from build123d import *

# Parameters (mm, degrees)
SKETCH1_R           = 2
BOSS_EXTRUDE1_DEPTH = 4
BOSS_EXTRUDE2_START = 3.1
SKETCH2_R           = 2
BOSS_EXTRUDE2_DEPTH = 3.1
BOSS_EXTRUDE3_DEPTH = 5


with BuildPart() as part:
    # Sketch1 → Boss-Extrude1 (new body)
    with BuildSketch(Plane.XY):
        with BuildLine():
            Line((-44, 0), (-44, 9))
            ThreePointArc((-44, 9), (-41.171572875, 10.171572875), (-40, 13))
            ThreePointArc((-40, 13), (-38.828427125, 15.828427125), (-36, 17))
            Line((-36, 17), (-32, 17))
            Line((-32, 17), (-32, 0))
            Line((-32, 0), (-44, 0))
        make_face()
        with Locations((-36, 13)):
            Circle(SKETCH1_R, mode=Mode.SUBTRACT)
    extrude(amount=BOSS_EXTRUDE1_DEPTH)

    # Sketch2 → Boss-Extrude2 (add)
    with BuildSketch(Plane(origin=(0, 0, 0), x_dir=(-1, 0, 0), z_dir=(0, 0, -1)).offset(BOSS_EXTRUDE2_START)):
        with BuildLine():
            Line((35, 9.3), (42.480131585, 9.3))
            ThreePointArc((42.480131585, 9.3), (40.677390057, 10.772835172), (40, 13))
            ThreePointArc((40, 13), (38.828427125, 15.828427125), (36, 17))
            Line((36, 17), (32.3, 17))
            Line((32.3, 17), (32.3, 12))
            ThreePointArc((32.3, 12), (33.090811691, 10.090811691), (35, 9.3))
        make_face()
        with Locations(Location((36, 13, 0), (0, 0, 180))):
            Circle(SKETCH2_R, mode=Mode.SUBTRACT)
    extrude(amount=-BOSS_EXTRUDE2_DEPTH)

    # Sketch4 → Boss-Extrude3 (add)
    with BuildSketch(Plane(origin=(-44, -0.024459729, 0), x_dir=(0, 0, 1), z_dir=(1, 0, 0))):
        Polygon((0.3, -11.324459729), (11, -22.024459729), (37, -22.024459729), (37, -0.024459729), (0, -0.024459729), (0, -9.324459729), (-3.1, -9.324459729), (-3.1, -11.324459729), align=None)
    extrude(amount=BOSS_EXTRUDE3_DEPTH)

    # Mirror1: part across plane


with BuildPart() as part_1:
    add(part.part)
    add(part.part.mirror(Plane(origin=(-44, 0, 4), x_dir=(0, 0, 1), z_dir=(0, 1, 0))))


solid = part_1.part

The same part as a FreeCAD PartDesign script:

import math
import FreeCAD as App
import Part
import Sketcher

V = App.Vector
Q = App.Units.Quantity

doc = App.newDocument("Part")
body = doc.addObject("PartDesign::Body", "Body")

# Sketch on XY plane
sketch1 = body.newObject("Sketcher::SketchObject", "Sketch")
sketch1.AttachmentSupport = (doc.getObject("XY_Plane"), [""])
sketch1.MapMode = "FlatFace"
sketch1.addGeometry([
    Part.LineSegment(V(-44, 9, 0), V(-44, 0, 0)),  # 0
    Part.LineSegment(V(-44, 0, 0), V(-32, 0, 0)),  # 1
    Part.LineSegment(V(-32, 0, 0), V(-32, 17, 0)),  # 2
    Part.LineSegment(V(-32, 17, 0), V(-36, 17, 0)),  # 3
    Part.ArcOfCircle(Part.Circle(V(-36, 13, 0), V(0, 0, 1), 4), math.radians(90), math.radians(180)),  # 4
    Part.ArcOfCircle(Part.Circle(V(-44, 13, 0), V(0, 0, 1), 4), math.radians(-90), math.radians(0)),  # 5
    Part.Circle(V(-36, 13, 0), V(0, 0, 1), 2),  # 6
], False)
sketch1.addConstraint([
    Sketcher.Constraint("Coincident", 0, 2, 1, 1),
    Sketcher.Constraint("Coincident", 1, 2, 2, 1),
    Sketcher.Constraint("Coincident", 2, 2, 3, 1),
    Sketcher.Constraint("Tangent", 3, 2, 4, 1),
    Sketcher.Constraint("Tangent", 4, 2, 5, 2),
    Sketcher.Constraint("Coincident", 5, 1, 0, 1),
    Sketcher.Constraint("Vertical", 0),
    Sketcher.Constraint("Horizontal", 1),
    Sketcher.Constraint("Vertical", 2),
    Sketcher.Constraint("Horizontal", 3),
    Sketcher.Constraint("Coincident", 6, 3, 4, 3),
    Sketcher.Constraint("Equal", 4, 5),
    Sketcher.Constraint("PointOnObject", 0, 2, -1),
    Sketcher.Constraint("Horizontal", 4, 3, 5, 3),
    Sketcher.Constraint("Vertical", 5, 3, 0, 2),
    Sketcher.Constraint("Diameter", 6, 4.0),
    Sketcher.Constraint("Radius", 4, 4.0),
    Sketcher.Constraint("DistanceX", 1, 1, 1, 2, 12.0),
    Sketcher.Constraint("DistanceY", 0, 2, 0, 1, 9.0),
    Sketcher.Constraint("DistanceX", 4, 3, -1, 1, 36.0),
])
pad1 = body.newObject("PartDesign::Pad", "Pad")
pad1.Profile = sketch1
pad1.Length = 4

# Sketch on XY plane
sketch2 = body.newObject("Sketcher::SketchObject", "Sketch001")
sketch2.AttachmentSupport = (doc.getObject("XY_Plane"), [""])
sketch2.MapMode = "FlatFace"
sketch2.AttachmentOffset = App.Placement(V(0, 0, -3.1), App.Rotation())
sketch2.addGeometry([
    Part.LineSegment(V(-35, 9.3, 0), V(-42.5, 9.3, 0)),  # 0
    Part.ArcOfCircle(Part.Circle(V(-44, 13, 0), V(0, 0, 1), 4), math.radians(-68), math.radians(0)),  # 1
    Part.ArcOfCircle(Part.Circle(V(-36, 13, 0), V(0, 0, 1), 4), math.radians(90), math.radians(180)),  # 2
    Part.LineSegment(V(-36, 17, 0), V(-32.3, 17, 0)),  # 3
    Part.LineSegment(V(-32.3, 17, 0), V(-32.3, 12, 0)),  # 4
    Part.ArcOfCircle(Part.Circle(V(-35, 12, 0), V(0, 0, 1), 2.7), math.radians(-90), math.radians(0)),  # 5
    Part.Circle(V(-36, 13, 0), V(0, 0, 1), 2),  # 6
], False)
sketch2.addConstraint([
    Sketcher.Constraint("Coincident", 0, 2, 1, 1),
    Sketcher.Constraint("Tangent", 1, 2, 2, 2),
    Sketcher.Constraint("Tangent", 2, 1, 3, 1),
    Sketcher.Constraint("Coincident", 3, 2, 4, 1),
    Sketcher.Constraint("Tangent", 4, 2, 5, 2),
    Sketcher.Constraint("Tangent", 5, 1, 0, 1),
    Sketcher.Constraint("Horizontal", 0),
    Sketcher.Constraint("Horizontal", 3),
    Sketcher.Constraint("Vertical", 4),
    Sketcher.Constraint("Coincident", 6, 3, 2, 3),
    Sketcher.Constraint("Equal", 1, 2),
    Sketcher.Constraint("Horizontal", 1, 3, 2, 3),
    Sketcher.Constraint("Diameter", 6, 4.0),
    Sketcher.Constraint("Radius", 1, 4.0),
    Sketcher.Constraint("Radius", 5, 2.7),
    Sketcher.Constraint("DistanceY", 4, 2, 4, 1, 5.0),
    Sketcher.Constraint("DistanceX", 3, 1, 3, 2, 3.7),
    Sketcher.Constraint("DistanceX", 1, 3, -1, 1, 44.0),
    Sketcher.Constraint("DistanceY", -1, 1, 1, 3, 13.0),
])
pad2 = body.newObject("PartDesign::Pad", "Pad001")
pad2.Profile = sketch2
pad2.Length = 3.1

# Sketch on YZ plane
sketch3 = body.newObject("Sketcher::SketchObject", "Sketch002")
sketch3.AttachmentSupport = (doc.getObject("YZ_Plane"), [""])
sketch3.MapMode = "FlatFace"
sketch3.AttachmentOffset = App.Placement(V(0, 0, -44), App.Rotation())
sketch3.addGeometry([
    Part.LineSegment(V(11.3, 0.3, 0), V(22, 11, 0)),  # 0
    Part.LineSegment(V(22, 11, 0), V(22, 37, 0)),  # 1
    Part.LineSegment(V(22, 37, 0), V(0, 37, 0)),  # 2
    Part.LineSegment(V(0, 37, 0), V(0, 0, 0)),  # 3
    Part.LineSegment(V(0, 0, 0), V(9.3, 0, 0)),  # 4
    Part.LineSegment(V(9.3, 0, 0), V(9.3, -3.1, 0)),  # 5
    Part.LineSegment(V(9.3, -3.1, 0), V(11.3, -3.1, 0)),  # 6
    Part.LineSegment(V(11.3, -3.1, 0), V(11.3, 0.3, 0)),  # 7
], False)
sketch3.addConstraint([
    Sketcher.Constraint("Coincident", 0, 2, 1, 1),
    Sketcher.Constraint("Coincident", 1, 2, 2, 1),
    Sketcher.Constraint("Coincident", 2, 2, 3, 1),
    Sketcher.Constraint("Coincident", 3, 2, 4, 1),
    Sketcher.Constraint("Coincident", 4, 2, 5, 1),
    Sketcher.Constraint("Coincident", 5, 2, 6, 1),
    Sketcher.Constraint("Coincident", 6, 2, 7, 1),
    Sketcher.Constraint("Coincident", 7, 2, 0, 1),
    Sketcher.Constraint("Vertical", 1),
    Sketcher.Constraint("Horizontal", 2),
    Sketcher.Constraint("Vertical", 3),
    Sketcher.Constraint("Horizontal", 4),
    Sketcher.Constraint("Vertical", 5),
    Sketcher.Constraint("Horizontal", 6),
    Sketcher.Constraint("Vertical", 7),
    Sketcher.Constraint("Coincident", 3, 2, -1, 1),
    Sketcher.Constraint("DistanceX", 2, 2, 2, 1, 22.0),
    Sketcher.Constraint("DistanceX", 6, 1, 6, 2, 2.0),
    Sketcher.Constraint("DistanceY", 1, 1, 1, 2, 26.0),
    Sketcher.Constraint("DistanceY", 3, 2, 3, 1, 37.0),
    Sketcher.Constraint("Angle", 0, Q("45 deg")),
    Sketcher.Constraint("DistanceX", 4, 1, 4, 2, 9.3),
    Sketcher.Constraint("DistanceY", 5, 2, 5, 1, 3.1),
])
pad3 = body.newObject("PartDesign::Pad", "Pad002")
pad3.Profile = sketch3
pad3.Length = 5
body2 = doc.addObject("PartDesign::Body", "Body001")
doc.recompute()

body2.BaseFeature = body
doc.recompute()

mirroring = doc.addObject("Part::Mirroring", "Mirroring")
mirroring.Source = body
mirroring.Base = V(-44, 0, 4)
mirroring.Normal = V(0, 1, 0)
body3 = doc.addObject("PartDesign::Body", "Body002")
body3.BaseFeature = mirroring
boolean = body2.newObject("PartDesign::Boolean", "Boolean")
boolean.Type = "Fuse"
boolean.addObjects([body3])
doc.recompute()
mirroring.Visibility = False

doc.recompute()
